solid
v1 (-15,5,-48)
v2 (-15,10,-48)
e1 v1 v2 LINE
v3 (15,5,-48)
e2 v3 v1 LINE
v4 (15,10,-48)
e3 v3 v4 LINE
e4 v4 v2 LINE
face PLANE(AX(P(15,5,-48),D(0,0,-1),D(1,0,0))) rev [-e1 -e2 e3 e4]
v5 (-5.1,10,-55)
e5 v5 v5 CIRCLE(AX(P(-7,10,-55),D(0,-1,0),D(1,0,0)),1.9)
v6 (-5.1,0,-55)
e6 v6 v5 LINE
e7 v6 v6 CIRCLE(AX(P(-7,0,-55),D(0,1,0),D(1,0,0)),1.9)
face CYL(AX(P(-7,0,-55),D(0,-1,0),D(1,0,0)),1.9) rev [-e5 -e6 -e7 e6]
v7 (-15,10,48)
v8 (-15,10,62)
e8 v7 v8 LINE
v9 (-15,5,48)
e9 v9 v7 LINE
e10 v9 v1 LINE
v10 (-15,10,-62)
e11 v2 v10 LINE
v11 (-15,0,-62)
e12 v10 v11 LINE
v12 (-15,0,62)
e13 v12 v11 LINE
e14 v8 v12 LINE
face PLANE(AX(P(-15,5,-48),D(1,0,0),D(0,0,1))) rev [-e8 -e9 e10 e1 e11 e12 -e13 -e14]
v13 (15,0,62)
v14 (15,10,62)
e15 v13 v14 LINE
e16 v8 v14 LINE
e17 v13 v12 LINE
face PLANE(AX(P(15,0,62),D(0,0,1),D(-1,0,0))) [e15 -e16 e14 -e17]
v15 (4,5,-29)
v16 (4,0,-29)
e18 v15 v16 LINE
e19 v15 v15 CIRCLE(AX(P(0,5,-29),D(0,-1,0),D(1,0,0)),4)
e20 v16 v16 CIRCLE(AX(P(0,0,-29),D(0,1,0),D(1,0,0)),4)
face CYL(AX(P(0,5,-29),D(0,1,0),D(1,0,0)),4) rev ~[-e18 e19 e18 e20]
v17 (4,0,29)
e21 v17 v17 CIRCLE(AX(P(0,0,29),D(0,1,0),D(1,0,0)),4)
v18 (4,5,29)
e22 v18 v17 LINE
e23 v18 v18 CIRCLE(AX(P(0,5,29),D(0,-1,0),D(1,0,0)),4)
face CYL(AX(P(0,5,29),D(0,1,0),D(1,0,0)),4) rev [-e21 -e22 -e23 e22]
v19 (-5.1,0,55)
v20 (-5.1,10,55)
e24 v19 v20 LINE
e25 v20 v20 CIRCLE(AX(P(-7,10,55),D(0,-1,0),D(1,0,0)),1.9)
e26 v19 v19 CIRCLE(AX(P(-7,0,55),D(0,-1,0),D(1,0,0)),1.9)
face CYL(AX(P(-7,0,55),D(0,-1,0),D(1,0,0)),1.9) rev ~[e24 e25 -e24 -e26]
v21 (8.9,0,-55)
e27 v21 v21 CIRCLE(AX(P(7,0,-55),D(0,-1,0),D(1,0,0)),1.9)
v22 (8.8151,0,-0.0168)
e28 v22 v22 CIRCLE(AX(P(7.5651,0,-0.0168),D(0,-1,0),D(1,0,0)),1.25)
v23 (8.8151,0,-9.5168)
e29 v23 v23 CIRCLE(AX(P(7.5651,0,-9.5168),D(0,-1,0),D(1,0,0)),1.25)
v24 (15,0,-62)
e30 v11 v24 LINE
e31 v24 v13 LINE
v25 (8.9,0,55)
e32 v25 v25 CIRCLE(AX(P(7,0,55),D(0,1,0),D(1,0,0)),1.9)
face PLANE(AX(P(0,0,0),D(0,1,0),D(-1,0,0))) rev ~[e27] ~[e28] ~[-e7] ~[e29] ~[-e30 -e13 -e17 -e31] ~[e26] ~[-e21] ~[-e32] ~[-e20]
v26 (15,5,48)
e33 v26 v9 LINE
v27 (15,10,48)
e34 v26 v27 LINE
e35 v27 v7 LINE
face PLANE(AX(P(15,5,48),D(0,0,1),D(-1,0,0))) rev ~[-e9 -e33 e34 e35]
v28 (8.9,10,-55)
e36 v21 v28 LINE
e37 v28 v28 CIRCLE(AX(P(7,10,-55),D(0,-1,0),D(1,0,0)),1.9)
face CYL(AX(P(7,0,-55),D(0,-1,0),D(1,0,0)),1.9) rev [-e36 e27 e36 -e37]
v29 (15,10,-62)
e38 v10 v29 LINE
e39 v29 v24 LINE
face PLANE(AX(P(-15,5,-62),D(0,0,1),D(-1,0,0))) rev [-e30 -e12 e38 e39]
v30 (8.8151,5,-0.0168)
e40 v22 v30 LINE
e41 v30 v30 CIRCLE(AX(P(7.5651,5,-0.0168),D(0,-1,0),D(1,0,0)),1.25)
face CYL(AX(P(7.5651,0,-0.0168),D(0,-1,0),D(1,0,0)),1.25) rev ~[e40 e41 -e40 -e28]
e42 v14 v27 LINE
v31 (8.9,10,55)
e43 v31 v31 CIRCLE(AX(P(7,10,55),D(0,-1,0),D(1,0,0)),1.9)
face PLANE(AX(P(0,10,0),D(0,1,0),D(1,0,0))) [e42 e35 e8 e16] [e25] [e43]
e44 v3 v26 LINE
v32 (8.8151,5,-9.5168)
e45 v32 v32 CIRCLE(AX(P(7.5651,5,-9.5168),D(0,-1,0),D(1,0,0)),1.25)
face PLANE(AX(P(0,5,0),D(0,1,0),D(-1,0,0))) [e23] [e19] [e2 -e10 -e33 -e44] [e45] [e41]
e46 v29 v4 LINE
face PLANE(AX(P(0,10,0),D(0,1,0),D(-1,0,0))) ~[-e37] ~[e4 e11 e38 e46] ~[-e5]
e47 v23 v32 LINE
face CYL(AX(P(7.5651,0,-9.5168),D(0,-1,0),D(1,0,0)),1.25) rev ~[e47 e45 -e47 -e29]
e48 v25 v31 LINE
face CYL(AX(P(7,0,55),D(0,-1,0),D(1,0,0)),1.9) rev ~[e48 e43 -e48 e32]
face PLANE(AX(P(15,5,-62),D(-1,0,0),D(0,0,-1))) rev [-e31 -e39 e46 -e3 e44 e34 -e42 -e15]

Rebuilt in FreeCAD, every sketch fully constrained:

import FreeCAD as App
import Part
import Sketcher

doc = App.newDocument("Part")
body = doc.addObject("PartDesign::Body", "Body")

# Sketch on XZ plane
sketch1 = body.newObject("Sketcher::SketchObject", "Sketch")
sketch1.AttachmentSupport = (doc.getObject("XZ_Plane"), [""])
sketch1.MapMode = "FlatFace"
sketch1.addGeometry([
    Part.LineSegment(App.Vector(-15, 62, 0), App.Vector(15, 62, 0)),
    Part.LineSegment(App.Vector(15, 62, 0), App.Vector(15, -62, 0)),
    Part.LineSegment(App.Vector(15, -62, 0), App.Vector(-15, -62, 0)),
    Part.LineSegment(App.Vector(-15, -62, 0), App.Vector(-15, 62, 0)),
], False)
sketch1.addConstraint([
    Sketcher.Constraint("Coincident", 0, 2, 1, 1),
    Sketcher.Constraint("Coincident", 1, 2, 2, 1),
    Sketcher.Constraint("Coincident", 2, 2, 3, 1),
    Sketcher.Constraint("Coincident", 3, 2, 0, 1),
    Sketcher.Constraint("Horizontal", 0),
    Sketcher.Constraint("Vertical", 1),
    Sketcher.Constraint("Horizontal", 2),
    Sketcher.Constraint("Vertical", 3),
    Sketcher.Constraint("Symmetric", 0, 2, 2, 2, -1, 1),
    Sketcher.Constraint("DistanceX", 0, 1, 0, 2, 30.0),
    Sketcher.Constraint("DistanceY", 1, 2, 1, 1, 124.0),
])
pad1 = body.newObject("PartDesign::Pad", "Pad")
pad1.Profile = sketch1
pad1.Length = 5
pad1.Reversed = True

# Sketch on XZ plane
sketch2 = body.newObject("Sketcher::SketchObject", "Sketch001")
sketch2.AttachmentSupport = (doc.getObject("XZ_Plane"), [""])
sketch2.MapMode = "FlatFace"
sketch2.AttachmentOffset = App.Placement(App.Vector(0, 0, -5), App.Rotation())
sketch2.addGeometry([
    Part.LineSegment(App.Vector(-15, 48, 0), App.Vector(-15, 62, 0)),
    Part.LineSegment(App.Vector(-15, 62, 0), App.Vector(15, 62, 0)),
    Part.LineSegment(App.Vector(15, 62, 0), App.Vector(15, 48, 0)),
    Part.LineSegment(App.Vector(15, 48, 0), App.Vector(-15, 48, 0)),
], False)
sketch2.addConstraint([
    Sketcher.Constraint("Coincident", 0, 2, 1, 1),
    Sketcher.Constraint("Coincident", 1, 2, 2, 1),
    Sketcher.Constraint("Coincident", 2, 2, 3, 1),
    Sketcher.Constraint("Coincident", 3, 2, 0, 1),
    Sketcher.Constraint("Vertical", 0),
    Sketcher.Constraint("Horizontal", 1),
    Sketcher.Constraint("Vertical", 2),
    Sketcher.Constraint("Horizontal", 3),
    Sketcher.Constraint("DistanceY", 0, 1, 0, 2, 14.0),
    Sketcher.Constraint("DistanceX", 1, 1, 1, 2, 30.0),
    Sketcher.Constraint("DistanceX", 0, 2, -1, 1, 15.0),
    Sketcher.Constraint("DistanceY", -1, 1, 0, 2, 62.0),
])
pad2 = body.newObject("PartDesign::Pad", "Pad001")
pad2.Profile = sketch2
pad2.Length = 5
pad2.Reversed = True
doc.recompute()

mirrored = body.newObject("PartDesign::Mirrored", "Mirrored")
mirrored.Originals = [pad2]
mirrored.MirrorPlane = (doc.getObject("XY_Plane"), [""])
body.Tip = mirrored

# Sketch on XZ plane
sketch3 = body.newObject("Sketcher::SketchObject", "Sketch002")
sketch3.AttachmentSupport = (doc.getObject("XZ_Plane"), [""])
sketch3.MapMode = "FlatFace"
sketch3.AttachmentOffset = App.Placement(App.Vector(0, 0, -5), App.Rotation())
sketch3.addGeometry(Part.Circle(App.Vector(0, -29, 0), App.Vector(0, 0, 1), 4), False)
sketch3.addConstraint([
    Sketcher.Constraint("PointOnObject", 0, 3, -2),
    Sketcher.Constraint("Diameter", 0, 8.0),
    Sketcher.Constraint("DistanceY", 0, 3, -1, 1, 29.0),
])
pocket1 = body.newObject("PartDesign::Pocket", "Pocket")
pocket1.Profile = sketch3
pocket1.Length = 15
pocket1.Reversed = True
doc.recompute()

mirrored2 = body.newObject("PartDesign::Mirrored", "Mirrored001")
mirrored2.Originals = [pocket1]
mirrored2.MirrorPlane = (doc.getObject("XY_Plane"), [""])
body.Tip = mirrored2

# Sketch on XZ plane
sketch4 = body.newObject("Sketcher::SketchObject", "Sketch003")
sketch4.AttachmentSupport = (doc.getObject("XZ_Plane"), [""])
sketch4.MapMode = "FlatFace"
sketch4.addGeometry([
    Part.Circle(App.Vector(7, 55, 0), App.Vector(0, 0, 1), 1.9),
    Part.Circle(App.Vector(-7, 55, 0), App.Vector(0, 0, 1), 1.9),
], False)
sketch4.addConstraint([
    Sketcher.Constraint("Equal", 0, 1),
    Sketcher.Constraint("Symmetric", 0, 3, 1, 3, -2),
    Sketcher.Constraint("Diameter", 0, 3.8),
    Sketcher.Constraint("DistanceX", -1, 1, 0, 3, 7.0),
    Sketcher.Constraint("DistanceY", -1, 1, 0, 3, 55.0),
])
pocket2 = body.newObject("PartDesign::Pocket", "Pocket001")
pocket2.Profile = sketch4
pocket2.Type = "ThroughAll"
doc.recompute()

mirrored3 = body.newObject("PartDesign::Mirrored", "Mirrored002")
mirrored3.Originals = [pocket2]
mirrored3.MirrorPlane = (doc.getObject("XY_Plane"), [""])
body.Tip = mirrored3

# Sketch on XZ plane
sketch5 = body.newObject("Sketcher::SketchObject", "Sketch004")
sketch5.AttachmentSupport = (doc.getObject("XZ_Plane"), [""])
sketch5.MapMode = "FlatFace"
sketch5.addGeometry([
    Part.Circle(App.Vector(7.5651, -9.5168, 0), App.Vector(0, 0, 1), 1.25),
    Part.Circle(App.Vector(7.5651, -0.0168, 0), App.Vector(0, 0, 1), 1.25),
], False)
sketch5.addConstraint([
    Sketcher.Constraint("Equal", 0, 1),
    Sketcher.Constraint("Vertical", 0, 3, 1, 3),
    Sketcher.Constraint("Diameter", 0, 2.5),
    Sketcher.Constraint("DistanceY", 0, 3, 1, 3, 9.5),
    Sketcher.Constraint("DistanceX", -1, 1, 0, 3, 7.565),
    Sketcher.Constraint("DistanceY", 0, 3, -1, 1, 9.5168),
])
pocket3 = body.newObject("PartDesign::Pocket", "Pocket002")
pocket3.Profile = sketch5
pocket3.Type = "ThroughAll"

doc.recompute()
